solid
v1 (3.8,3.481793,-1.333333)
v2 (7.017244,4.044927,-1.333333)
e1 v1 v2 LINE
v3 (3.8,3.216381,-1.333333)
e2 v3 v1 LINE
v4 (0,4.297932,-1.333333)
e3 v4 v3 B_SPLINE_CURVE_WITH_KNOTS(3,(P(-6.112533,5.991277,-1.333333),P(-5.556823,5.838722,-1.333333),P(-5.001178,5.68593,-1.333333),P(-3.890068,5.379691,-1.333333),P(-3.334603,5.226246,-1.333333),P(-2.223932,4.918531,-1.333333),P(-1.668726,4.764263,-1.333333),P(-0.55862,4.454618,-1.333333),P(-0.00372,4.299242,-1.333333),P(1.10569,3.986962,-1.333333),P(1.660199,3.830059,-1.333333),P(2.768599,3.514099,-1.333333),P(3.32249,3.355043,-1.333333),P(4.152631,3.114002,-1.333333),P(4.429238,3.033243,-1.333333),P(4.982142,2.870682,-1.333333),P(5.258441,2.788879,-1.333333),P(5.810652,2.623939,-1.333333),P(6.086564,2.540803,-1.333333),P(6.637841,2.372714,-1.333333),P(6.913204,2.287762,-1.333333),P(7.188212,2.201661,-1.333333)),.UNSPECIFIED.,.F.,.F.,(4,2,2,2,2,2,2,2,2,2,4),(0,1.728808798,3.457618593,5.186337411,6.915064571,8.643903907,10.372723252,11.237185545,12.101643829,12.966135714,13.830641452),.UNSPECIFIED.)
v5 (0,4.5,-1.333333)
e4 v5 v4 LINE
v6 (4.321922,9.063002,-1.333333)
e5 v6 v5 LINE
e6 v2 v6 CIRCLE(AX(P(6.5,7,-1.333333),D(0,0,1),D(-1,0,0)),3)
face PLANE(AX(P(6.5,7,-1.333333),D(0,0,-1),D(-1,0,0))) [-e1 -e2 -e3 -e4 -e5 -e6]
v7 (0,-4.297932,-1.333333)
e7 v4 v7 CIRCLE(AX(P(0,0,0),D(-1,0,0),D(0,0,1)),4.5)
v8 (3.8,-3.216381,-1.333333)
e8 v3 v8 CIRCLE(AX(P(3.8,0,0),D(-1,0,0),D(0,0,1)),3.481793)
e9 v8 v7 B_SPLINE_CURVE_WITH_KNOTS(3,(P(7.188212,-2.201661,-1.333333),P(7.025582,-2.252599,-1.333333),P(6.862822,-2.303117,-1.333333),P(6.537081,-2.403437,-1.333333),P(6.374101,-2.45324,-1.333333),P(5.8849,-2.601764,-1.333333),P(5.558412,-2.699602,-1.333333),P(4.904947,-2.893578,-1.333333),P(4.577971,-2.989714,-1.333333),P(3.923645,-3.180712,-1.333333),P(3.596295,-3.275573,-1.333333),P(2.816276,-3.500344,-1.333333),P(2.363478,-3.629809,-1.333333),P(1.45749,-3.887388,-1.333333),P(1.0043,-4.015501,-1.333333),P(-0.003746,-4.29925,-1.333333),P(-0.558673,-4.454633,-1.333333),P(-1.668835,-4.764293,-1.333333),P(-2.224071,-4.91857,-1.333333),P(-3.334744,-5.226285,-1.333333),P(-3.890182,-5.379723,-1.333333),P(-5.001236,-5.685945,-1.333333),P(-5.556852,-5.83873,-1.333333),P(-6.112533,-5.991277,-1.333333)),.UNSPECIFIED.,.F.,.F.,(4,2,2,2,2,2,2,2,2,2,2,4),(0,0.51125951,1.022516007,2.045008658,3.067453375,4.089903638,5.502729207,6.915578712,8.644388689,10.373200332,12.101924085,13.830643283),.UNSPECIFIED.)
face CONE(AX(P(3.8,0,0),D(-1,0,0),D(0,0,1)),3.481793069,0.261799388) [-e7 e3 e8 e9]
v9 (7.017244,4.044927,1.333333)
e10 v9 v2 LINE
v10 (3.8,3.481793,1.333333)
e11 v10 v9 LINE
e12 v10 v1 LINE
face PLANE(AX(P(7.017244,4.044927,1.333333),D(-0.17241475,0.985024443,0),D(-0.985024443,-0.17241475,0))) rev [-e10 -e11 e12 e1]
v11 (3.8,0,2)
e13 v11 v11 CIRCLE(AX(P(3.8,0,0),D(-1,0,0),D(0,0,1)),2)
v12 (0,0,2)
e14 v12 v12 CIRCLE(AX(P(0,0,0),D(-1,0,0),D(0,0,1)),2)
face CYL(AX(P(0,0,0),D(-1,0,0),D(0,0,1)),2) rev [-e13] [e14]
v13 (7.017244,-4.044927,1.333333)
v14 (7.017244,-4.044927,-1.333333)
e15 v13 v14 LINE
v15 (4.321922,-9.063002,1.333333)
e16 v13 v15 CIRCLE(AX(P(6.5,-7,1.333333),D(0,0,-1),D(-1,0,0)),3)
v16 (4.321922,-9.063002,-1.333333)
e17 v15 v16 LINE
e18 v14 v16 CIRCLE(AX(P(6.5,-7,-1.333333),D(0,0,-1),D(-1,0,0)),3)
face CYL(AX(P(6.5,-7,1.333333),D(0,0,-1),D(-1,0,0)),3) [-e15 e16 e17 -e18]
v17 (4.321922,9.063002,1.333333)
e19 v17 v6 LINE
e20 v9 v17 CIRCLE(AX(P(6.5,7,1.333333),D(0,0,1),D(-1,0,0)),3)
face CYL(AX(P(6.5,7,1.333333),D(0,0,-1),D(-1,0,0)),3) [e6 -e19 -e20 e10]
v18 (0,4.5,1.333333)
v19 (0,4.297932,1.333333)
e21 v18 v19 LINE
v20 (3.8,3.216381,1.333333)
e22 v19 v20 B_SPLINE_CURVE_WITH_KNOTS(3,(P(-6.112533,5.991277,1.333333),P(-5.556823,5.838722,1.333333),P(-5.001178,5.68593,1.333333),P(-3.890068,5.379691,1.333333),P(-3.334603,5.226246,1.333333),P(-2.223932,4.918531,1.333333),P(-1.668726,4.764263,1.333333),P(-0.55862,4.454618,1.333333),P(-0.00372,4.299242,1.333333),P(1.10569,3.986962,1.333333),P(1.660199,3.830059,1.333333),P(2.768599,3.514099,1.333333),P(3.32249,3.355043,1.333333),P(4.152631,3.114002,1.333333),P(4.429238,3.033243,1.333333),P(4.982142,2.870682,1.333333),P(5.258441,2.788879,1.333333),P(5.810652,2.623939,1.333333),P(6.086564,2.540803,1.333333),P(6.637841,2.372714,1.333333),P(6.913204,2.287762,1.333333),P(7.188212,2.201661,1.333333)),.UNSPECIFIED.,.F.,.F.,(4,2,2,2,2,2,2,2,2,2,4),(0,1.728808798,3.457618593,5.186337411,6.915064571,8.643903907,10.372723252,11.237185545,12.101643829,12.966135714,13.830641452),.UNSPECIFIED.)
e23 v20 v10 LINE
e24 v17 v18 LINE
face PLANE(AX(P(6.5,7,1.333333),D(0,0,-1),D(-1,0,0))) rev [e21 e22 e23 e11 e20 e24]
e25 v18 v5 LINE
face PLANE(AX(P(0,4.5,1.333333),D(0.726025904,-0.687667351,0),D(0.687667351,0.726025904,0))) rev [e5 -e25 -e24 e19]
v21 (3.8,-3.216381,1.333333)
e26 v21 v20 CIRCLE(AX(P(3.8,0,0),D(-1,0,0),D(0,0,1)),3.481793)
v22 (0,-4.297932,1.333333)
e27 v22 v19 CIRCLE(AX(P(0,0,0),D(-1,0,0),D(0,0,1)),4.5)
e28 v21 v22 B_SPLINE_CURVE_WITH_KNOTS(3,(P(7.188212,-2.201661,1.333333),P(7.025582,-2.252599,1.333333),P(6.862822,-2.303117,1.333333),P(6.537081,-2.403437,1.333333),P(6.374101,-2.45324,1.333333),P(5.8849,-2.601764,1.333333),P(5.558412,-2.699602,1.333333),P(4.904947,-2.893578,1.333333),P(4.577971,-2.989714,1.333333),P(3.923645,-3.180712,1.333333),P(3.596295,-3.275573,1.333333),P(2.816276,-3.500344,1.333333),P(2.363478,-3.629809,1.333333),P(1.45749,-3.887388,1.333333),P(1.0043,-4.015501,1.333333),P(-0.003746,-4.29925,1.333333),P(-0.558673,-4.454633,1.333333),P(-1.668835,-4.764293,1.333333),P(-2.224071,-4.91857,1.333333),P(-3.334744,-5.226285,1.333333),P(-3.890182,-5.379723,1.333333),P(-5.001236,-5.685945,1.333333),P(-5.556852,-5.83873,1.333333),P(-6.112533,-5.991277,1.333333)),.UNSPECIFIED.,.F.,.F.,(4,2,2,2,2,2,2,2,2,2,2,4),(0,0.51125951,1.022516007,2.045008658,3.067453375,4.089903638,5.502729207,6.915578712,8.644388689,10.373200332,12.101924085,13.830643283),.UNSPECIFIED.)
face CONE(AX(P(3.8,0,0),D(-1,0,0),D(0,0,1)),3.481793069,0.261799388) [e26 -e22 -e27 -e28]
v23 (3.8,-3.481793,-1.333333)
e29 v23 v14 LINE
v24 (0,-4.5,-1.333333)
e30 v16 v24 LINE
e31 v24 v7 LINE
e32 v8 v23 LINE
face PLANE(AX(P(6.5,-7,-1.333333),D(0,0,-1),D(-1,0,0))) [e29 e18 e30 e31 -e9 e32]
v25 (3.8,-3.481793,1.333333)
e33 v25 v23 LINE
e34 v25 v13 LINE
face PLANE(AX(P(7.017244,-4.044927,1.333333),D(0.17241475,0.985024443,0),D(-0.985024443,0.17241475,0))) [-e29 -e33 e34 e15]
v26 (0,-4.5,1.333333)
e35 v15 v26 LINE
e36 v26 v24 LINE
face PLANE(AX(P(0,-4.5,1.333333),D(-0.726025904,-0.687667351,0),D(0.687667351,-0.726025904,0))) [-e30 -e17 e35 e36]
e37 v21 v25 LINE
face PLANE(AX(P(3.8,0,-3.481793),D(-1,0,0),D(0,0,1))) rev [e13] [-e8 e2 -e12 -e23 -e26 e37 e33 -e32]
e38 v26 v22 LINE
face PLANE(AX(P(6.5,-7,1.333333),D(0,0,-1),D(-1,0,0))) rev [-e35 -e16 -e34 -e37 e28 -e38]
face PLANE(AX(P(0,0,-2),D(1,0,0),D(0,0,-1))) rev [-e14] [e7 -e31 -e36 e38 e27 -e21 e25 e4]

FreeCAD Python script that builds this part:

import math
import FreeCAD as App
import Part
import Sketcher

V = App.Vector
Q = App.Units.Quantity

doc = App.newDocument("Part")
body = doc.addObject("PartDesign::Body", "Body")

sketch1 = body.newObject("Sketcher::SketchObject", "Sketch")
sketch1.AttachmentSupport = (doc.getObject("XZ_Plane"), [""])
sketch1.MapMode = "FlatFace"
sketch1.addGeometry(Part.LineSegment(V(0, -4.5, 0), V(0, -2, 0)), False)
sketch1.addGeometry(Part.LineSegment(V(0, -2, 0), V(3.8, -2, 0)), False)
sketch1.addGeometry(Part.LineSegment(V(3.8, -2, 0), V(3.8, -3.5, 0)), False)
sketch1.addGeometry(Part.LineSegment(V(3.8, -3.5, 0), V(0, -4.5, 0)), False)
sketch1.addConstraint(Sketcher.Constraint("Coincident", 0, 2, 1, 1))
sketch1.addConstraint(Sketcher.Constraint("Coincident", 1, 2, 2, 1))
sketch1.addConstraint(Sketcher.Constraint("Coincident", 2, 2, 3, 1))
sketch1.addConstraint(Sketcher.Constraint("Coincident", 3, 2, 0, 1))
sketch1.addConstraint(Sketcher.Constraint("Vertical", 0))
sketch1.addConstraint(Sketcher.Constraint("Horizontal", 1))
sketch1.addConstraint(Sketcher.Constraint("Vertical", 2))
sketch1.addConstraint(Sketcher.Constraint("PointOnObject", 0, 2, -2))
sketch1.addConstraint(Sketcher.Constraint("Angle", 3, Q("-165 deg")))
sketch1.addConstraint(Sketcher.Constraint("DistanceX", 1, 1, 1, 2, 3.8))
sketch1.addConstraint(Sketcher.Constraint("DistanceY", 0, 1, 0, 2, 2.5))
sketch1.addConstraint(Sketcher.Constraint("DistanceY", 0, 2, -1, 1, 2.0))
revolution = body.newObject("PartDesign::Revolution", "Revolution")
revolution.Profile = sketch1
revolution.ReferenceAxis = (sketch1, ["H_Axis"])
revolution.Angle = 360

sketch2 = body.newObject("Sketcher::SketchObject", "Sketch001")
sketch2.AttachmentSupport = (doc.getObject("XY_Plane"), [""])
sketch2.MapMode = "FlatFace"
sketch2.addGeometry(Part.LineSegment(V(4.3, 9.1, 0), V(0, 4.5, 0)), False)
sketch2.addGeometry(Part.LineSegment(V(0, 4.5, 0), V(0, 2, 0)), False)
sketch2.addGeometry(Part.LineSegment(V(0, 2, 0), V(3.8, 2, 0)), False)
sketch2.addGeometry(Part.LineSegment(V(3.8, 2, 0), V(3.8, 3.5, 0)), False)
sketch2.addGeometry(Part.LineSegment(V(3.8, 3.5, 0), V(7, 4, 0)), False)
sketch2.addGeometry(Part.ArcOfCircle(Part.Circle(V(6.5, 7, 0), V(0, 0, 1), 3), math.radians(-80), math.radians(137)), False)
sketch2.addConstraint(Sketcher.Constraint("Coincident", 0, 2, 1, 1))
sketch2.addConstraint(Sketcher.Constraint("Coincident", 1, 2, 2, 1))
sketch2.addConstraint(Sketcher.Constraint("Coincident", 2, 2, 3, 1))
sketch2.addConstraint(Sketcher.Constraint("Coincident", 3, 2, 4, 1))
sketch2.addConstraint(Sketcher.Constraint("Tangent", 4, 2, 5, 1))
sketch2.addConstraint(Sketcher.Constraint("Tangent", 5, 2, 0, 1))
sketch2.addConstraint(Sketcher.Constraint("Vertical", 1))
sketch2.addConstraint(Sketcher.Constraint("Horizontal", 2))
sketch2.addConstraint(Sketcher.Constraint("Vertical", 3))
sketch2.addConstraint(Sketcher.Constraint("PointOnObject", 0, 2, -2))
sketch2.addConstraint(Sketcher.Constraint("Radius", 5, 3.0))
sketch2.addConstraint(Sketcher.Constraint("DistanceX", 2, 1, 2, 2, 3.8))
sketch2.addConstraint(Sketcher.Constraint("DistanceY", 1, 2, 1, 1, 2.5))
sketch2.addConstraint(Sketcher.Constraint("DistanceY", -1, 1, 5, 3, 7.0))
sketch2.addConstraint(Sketcher.Constraint("DistanceY", -1, 1, 1, 2, 2.0))
sketch2.addConstraint(Sketcher.Constraint("DistanceX", -1, 1, 5, 3, 6.5))
sketch2.addConstraint(Sketcher.Constraint("DistanceY", 3, 1, 3, 2, 1.481793))
pad1 = body.newObject("PartDesign::Pad", "Pad")
pad1.Profile = sketch2
pad1.Length = 2.666667
pad1.Midplane = True
doc.recompute()

mirrored = body.newObject("PartDesign::Mirrored", "Mirrored")
mirrored.Originals = [pad1]
mirrored.MirrorPlane = (doc.getObject("XZ_Plane"), [""])
body.Tip = mirrored

doc.recompute()
